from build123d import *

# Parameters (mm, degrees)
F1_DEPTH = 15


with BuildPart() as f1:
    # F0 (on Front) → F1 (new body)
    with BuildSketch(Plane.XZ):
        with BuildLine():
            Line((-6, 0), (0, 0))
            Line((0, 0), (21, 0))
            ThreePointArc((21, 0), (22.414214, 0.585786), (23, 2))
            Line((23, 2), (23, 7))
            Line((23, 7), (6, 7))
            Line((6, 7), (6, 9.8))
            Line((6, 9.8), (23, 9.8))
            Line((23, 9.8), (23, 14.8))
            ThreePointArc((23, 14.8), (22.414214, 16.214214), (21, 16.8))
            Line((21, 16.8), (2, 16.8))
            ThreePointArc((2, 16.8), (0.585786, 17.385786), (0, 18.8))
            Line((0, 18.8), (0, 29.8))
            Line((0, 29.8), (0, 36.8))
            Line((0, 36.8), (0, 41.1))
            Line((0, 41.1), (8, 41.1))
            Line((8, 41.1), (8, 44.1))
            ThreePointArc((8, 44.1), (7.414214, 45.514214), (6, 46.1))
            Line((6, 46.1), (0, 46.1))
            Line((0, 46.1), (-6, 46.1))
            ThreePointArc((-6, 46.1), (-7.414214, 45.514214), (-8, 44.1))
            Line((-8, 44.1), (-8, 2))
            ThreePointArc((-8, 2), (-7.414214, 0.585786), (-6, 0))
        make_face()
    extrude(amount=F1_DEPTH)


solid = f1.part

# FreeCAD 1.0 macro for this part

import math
import FreeCAD as App
import Part
import Sketcher
Q = App.Units.Quantity

doc = App.newDocument("Part")
params = doc.addObject("Spreadsheet::Sheet", "Params")
for row, (alias, value) in enumerate([
    ("sketch1_radius", "1.999999 mm"),
    ("sketch1_width", "27 mm"),
    ("sketch1_width2", "17 mm"),
    ("sketch1_width3", "19 mm"),
    ("sketch1_height", "5 mm"),
    ("pad1_length", "15 mm"),
], start=1):
    params.set(f"A{row}", alias)
    params.set(f"B{row}", "=" + value)
    params.setAlias(f"B{row}", alias)

body = doc.addObject("PartDesign::Body", "Body")

sketch1 = body.newObject("Sketcher::SketchObject", "Sketch")
sketch1.AttachmentSupport = (doc.getObject("XZ_Plane"), [""])
sketch1.MapMode = "FlatFace"
sketch1.addGeometry([
    Part.LineSegment(App.Vector(-6, 0, 0), App.Vector(21, 0, 0)),
    Part.ArcOfCircle(Part.Circle(App.Vector(21, 2, 0), App.Vector(0, 0, 1), 2), math.radians(-90), math.radians(0)),
    Part.LineSegment(App.Vector(23, 2, 0), App.Vector(23, 7, 0)),
    Part.LineSegment(App.Vector(23, 7, 0), App.Vector(6, 7, 0)),
    Part.LineSegment(App.Vector(6, 7, 0), App.Vector(6, 9.8, 0)),
    Part.LineSegment(App.Vector(6, 9.8, 0), App.Vector(23, 9.8, 0)),
    Part.LineSegment(App.Vector(23, 9.8, 0), App.Vector(23, 14.8, 0)),
    Part.ArcOfCircle(Part.Circle(App.Vector(21, 14.8, 0), App.Vector(0, 0, 1), 2), math.radians(0), math.radians(90)),
    Part.LineSegment(App.Vector(21, 16.8, 0), App.Vector(2, 16.8, 0)),
    Part.ArcOfCircle(Part.Circle(App.Vector(2, 18.8, 0), App.Vector(0, 0, 1), 2), math.radians(180), math.radians(270)),
    Part.LineSegment(App.Vector(0, 18.8, 0), App.Vector(0, 41.1, 0)),
    Part.LineSegment(App.Vector(0, 41.1, 0), App.Vector(8, 41.1, 0)),
    Part.LineSegment(App.Vector(8, 41.1, 0), App.Vector(8, 44.1, 0)),
    Part.ArcOfCircle(Part.Circle(App.Vector(6, 44.1, 0), App.Vector(0, 0, 1), 2), math.radians(0), math.radians(90)),
    Part.LineSegment(App.Vector(6, 46.1, 0), App.Vector(-6, 46.1, 0)),
    Part.ArcOfCircle(Part.Circle(App.Vector(-6, 44.1, 0), App.Vector(0, 0, 1), 2), math.radians(90), math.radians(180)),
    Part.LineSegment(App.Vector(-8, 44.1, 0), App.Vector(-8, 2, 0)),
    Part.ArcOfCircle(Part.Circle(App.Vector(-6, 2, 0), App.Vector(0, 0, 1), 2), math.radians(180), math.radians(270)),
], False)
sketch1.addConstraint([
    Sketcher.Constraint("Tangent", 0, 2, 1, 1),
    Sketcher.Constraint("Tangent", 1, 2, 2, 1),
    Sketcher.Constraint("Coincident", 2, 2, 3, 1),
    Sketcher.Constraint("Coincident", 3, 2, 4, 1),
    Sketcher.Constraint("Coincident", 4, 2, 5, 1),
    Sketcher.Constraint("Coincident", 5, 2, 6, 1),
    Sketcher.Constraint("Tangent", 6, 2, 7, 1),
    Sketcher.Constraint("Tangent", 7, 2, 8, 1),
    Sketcher.Constraint("Tangent", 8, 2, 9, 2),
    Sketcher.Constraint("Tangent", 9, 1, 10, 1),
    Sketcher.Constraint("Coincident", 10, 2, 11, 1),
    Sketcher.Constraint("Coincident", 11, 2, 12, 1),
    Sketcher.Constraint("Tangent", 12, 2, 13, 1),
    Sketcher.Constraint("Tangent", 13, 2, 14, 1),
    Sketcher.Constraint("Tangent", 14, 2, 15, 1),
    Sketcher.Constraint("Tangent", 15, 2, 16, 1),
    Sketcher.Constraint("Tangent", 16, 2, 17, 1),
    Sketcher.Constraint("Tangent", 17, 2, 0, 1),
    Sketcher.Constraint("Horizontal", 0),
    Sketcher.Constraint("Vertical", 2),
    Sketcher.Constraint("Horizontal", 3),
    Sketcher.Constraint("Vertical", 4),
    Sketcher.Constraint("Horizontal", 5),
    Sketcher.Constraint("Vertical", 6),
    Sketcher.Constraint("Horizontal", 8),
    Sketcher.Constraint("Vertical", 10),
    Sketcher.Constraint("Horizontal", 11),
    Sketcher.Constraint("Vertical", 12),
    Sketcher.Constraint("Horizontal", 14),
    Sketcher.Constraint("Vertical", 16),
    Sketcher.Constraint("Equal", 1, 7),
    Sketcher.Constraint("Equal", 7, 9),
    Sketcher.Constraint("Equal", 9, 13),
    Sketcher.Constraint("Equal", 13, 15),
    Sketcher.Constraint("Equal", 15, 17),
    Sketcher.Constraint("PointOnObject", 0, 2, -1),
    Sketcher.Constraint("PointOnObject", 9, 1, -2),
    Sketcher.Constraint("Vertical", 1, 3, 7, 3),
    Sketcher.Constraint("Vertical", 13, 3, 3, 2),
    Sketcher.Constraint("Equal", 2, 6),
    Sketcher.Constraint("Radius", 1, Q("1.999999 mm")),
    Sketcher.Constraint("DistanceX", 0, 1, 0, 2, Q("27 mm")),
    Sketcher.Constraint("DistanceX", 3, 2, 3, 1, Q("17 mm")),
    Sketcher.Constraint("DistanceX", 8, 2, 8, 1, Q("19 mm")),
    Sketcher.Constraint("DistanceY", 2, 1, 2, 2, Q("5 mm")),
    Sketcher.Constraint("DistanceY", 12, 1, 12, 2, Q("3 mm")),
    Sketcher.Constraint("DistanceY", 4, 1, 4, 2, Q("2.8 mm")),
    Sketcher.Constraint("DistanceY", 10, 1, 10, 2, Q("22.3 mm")),
])
sketch1.setExpression("Constraints[40]", "Params.sketch1_radius")
sketch1.setExpression("Constraints[41]", "Params.sketch1_width")
sketch1.setExpression("Constraints[42]", "Params.sketch1_width2")
sketch1.setExpression("Constraints[43]", "Params.sketch1_width3")
sketch1.setExpression("Constraints[44]", "Params.sketch1_height")
pad1 = body.newObject("PartDesign::Pad", "Pad")
pad1.Profile = sketch1
pad1.setExpression("Length", "Params.pad1_length")

doc.recompute()
